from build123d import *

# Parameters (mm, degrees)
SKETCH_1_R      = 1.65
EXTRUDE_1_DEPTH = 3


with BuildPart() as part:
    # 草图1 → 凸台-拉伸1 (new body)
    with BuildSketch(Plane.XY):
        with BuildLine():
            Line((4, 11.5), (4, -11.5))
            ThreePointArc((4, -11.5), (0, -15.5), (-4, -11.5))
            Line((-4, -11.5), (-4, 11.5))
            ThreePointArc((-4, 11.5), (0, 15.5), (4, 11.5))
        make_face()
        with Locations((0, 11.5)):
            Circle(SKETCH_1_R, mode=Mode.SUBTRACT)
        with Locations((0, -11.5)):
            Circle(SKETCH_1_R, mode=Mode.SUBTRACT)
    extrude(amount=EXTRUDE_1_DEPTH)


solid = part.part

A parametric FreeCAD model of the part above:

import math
import FreeCAD as App
import Part
import Sketcher

V = App.Vector

doc = App.newDocument("Part")
body = doc.addObject("PartDesign::Body", "Body")

# Sketch on XY plane
sketch1 = body.newObject("Sketcher::SketchObject", "Sketch")
sketch1.AttachmentSupport = (doc.getObject("XY_Plane"), [""])
sketch1.MapMode = "FlatFace"
sketch1.addGeometry([
    Part.LineSegment(V(4, -11.5, 0), V(4, 11.5, 0)),  # 0
    Part.ArcOfCircle(Part.Circle(V(0, 11.5, 0), V(0, 0, 1), 4), math.radians(0), math.radians(180)),  # 1
    Part.LineSegment(V(-4, 11.5, 0), V(-4, -11.5, 0)),  # 2
    Part.ArcOfCircle(Part.Circle(V(0, -11.5, 0), V(0, 0, 1), 4), math.radians(180), math.radians(360)),  # 3
    Part.Circle(V(0, -11.5, 0), V(0, 0, 1), 1.65),  # 4
    Part.Circle(V(0, 11.5, 0), V(0, 0, 1), 1.65),  # 5
], False)
sketch1.addConstraint([
    Sketcher.Constraint("Tangent", 0, 2, 1, 1),
    Sketcher.Constraint("Tangent", 1, 2, 2, 1),
    Sketcher.Constraint("Tangent", 2, 2, 3, 1),
    Sketcher.Constraint("Tangent", 3, 2, 0, 1),
    Sketcher.Constraint("Vertical", 0),
    Sketcher.Constraint("Vertical", 2),
    Sketcher.Constraint("Coincident", 4, 3, 3, 3),
    Sketcher.Constraint("Coincident", 5, 3, 1, 3),
    Sketcher.Constraint("Equal", 4, 5),
    Sketcher.Constraint("Symmetric", 1, 3, 3, 3, -1, 1),
    Sketcher.Constraint("Radius", 1, 4.0),
    Sketcher.Constraint("Diameter", 4, 3.3),
    Sketcher.Constraint("DistanceY", 0, 1, 0, 2, 23.0),
])
pad1 = body.newObject("PartDesign::Pad", "Pad")
pad1.Profile = sketch1
pad1.Length = 3

doc.recompute()
